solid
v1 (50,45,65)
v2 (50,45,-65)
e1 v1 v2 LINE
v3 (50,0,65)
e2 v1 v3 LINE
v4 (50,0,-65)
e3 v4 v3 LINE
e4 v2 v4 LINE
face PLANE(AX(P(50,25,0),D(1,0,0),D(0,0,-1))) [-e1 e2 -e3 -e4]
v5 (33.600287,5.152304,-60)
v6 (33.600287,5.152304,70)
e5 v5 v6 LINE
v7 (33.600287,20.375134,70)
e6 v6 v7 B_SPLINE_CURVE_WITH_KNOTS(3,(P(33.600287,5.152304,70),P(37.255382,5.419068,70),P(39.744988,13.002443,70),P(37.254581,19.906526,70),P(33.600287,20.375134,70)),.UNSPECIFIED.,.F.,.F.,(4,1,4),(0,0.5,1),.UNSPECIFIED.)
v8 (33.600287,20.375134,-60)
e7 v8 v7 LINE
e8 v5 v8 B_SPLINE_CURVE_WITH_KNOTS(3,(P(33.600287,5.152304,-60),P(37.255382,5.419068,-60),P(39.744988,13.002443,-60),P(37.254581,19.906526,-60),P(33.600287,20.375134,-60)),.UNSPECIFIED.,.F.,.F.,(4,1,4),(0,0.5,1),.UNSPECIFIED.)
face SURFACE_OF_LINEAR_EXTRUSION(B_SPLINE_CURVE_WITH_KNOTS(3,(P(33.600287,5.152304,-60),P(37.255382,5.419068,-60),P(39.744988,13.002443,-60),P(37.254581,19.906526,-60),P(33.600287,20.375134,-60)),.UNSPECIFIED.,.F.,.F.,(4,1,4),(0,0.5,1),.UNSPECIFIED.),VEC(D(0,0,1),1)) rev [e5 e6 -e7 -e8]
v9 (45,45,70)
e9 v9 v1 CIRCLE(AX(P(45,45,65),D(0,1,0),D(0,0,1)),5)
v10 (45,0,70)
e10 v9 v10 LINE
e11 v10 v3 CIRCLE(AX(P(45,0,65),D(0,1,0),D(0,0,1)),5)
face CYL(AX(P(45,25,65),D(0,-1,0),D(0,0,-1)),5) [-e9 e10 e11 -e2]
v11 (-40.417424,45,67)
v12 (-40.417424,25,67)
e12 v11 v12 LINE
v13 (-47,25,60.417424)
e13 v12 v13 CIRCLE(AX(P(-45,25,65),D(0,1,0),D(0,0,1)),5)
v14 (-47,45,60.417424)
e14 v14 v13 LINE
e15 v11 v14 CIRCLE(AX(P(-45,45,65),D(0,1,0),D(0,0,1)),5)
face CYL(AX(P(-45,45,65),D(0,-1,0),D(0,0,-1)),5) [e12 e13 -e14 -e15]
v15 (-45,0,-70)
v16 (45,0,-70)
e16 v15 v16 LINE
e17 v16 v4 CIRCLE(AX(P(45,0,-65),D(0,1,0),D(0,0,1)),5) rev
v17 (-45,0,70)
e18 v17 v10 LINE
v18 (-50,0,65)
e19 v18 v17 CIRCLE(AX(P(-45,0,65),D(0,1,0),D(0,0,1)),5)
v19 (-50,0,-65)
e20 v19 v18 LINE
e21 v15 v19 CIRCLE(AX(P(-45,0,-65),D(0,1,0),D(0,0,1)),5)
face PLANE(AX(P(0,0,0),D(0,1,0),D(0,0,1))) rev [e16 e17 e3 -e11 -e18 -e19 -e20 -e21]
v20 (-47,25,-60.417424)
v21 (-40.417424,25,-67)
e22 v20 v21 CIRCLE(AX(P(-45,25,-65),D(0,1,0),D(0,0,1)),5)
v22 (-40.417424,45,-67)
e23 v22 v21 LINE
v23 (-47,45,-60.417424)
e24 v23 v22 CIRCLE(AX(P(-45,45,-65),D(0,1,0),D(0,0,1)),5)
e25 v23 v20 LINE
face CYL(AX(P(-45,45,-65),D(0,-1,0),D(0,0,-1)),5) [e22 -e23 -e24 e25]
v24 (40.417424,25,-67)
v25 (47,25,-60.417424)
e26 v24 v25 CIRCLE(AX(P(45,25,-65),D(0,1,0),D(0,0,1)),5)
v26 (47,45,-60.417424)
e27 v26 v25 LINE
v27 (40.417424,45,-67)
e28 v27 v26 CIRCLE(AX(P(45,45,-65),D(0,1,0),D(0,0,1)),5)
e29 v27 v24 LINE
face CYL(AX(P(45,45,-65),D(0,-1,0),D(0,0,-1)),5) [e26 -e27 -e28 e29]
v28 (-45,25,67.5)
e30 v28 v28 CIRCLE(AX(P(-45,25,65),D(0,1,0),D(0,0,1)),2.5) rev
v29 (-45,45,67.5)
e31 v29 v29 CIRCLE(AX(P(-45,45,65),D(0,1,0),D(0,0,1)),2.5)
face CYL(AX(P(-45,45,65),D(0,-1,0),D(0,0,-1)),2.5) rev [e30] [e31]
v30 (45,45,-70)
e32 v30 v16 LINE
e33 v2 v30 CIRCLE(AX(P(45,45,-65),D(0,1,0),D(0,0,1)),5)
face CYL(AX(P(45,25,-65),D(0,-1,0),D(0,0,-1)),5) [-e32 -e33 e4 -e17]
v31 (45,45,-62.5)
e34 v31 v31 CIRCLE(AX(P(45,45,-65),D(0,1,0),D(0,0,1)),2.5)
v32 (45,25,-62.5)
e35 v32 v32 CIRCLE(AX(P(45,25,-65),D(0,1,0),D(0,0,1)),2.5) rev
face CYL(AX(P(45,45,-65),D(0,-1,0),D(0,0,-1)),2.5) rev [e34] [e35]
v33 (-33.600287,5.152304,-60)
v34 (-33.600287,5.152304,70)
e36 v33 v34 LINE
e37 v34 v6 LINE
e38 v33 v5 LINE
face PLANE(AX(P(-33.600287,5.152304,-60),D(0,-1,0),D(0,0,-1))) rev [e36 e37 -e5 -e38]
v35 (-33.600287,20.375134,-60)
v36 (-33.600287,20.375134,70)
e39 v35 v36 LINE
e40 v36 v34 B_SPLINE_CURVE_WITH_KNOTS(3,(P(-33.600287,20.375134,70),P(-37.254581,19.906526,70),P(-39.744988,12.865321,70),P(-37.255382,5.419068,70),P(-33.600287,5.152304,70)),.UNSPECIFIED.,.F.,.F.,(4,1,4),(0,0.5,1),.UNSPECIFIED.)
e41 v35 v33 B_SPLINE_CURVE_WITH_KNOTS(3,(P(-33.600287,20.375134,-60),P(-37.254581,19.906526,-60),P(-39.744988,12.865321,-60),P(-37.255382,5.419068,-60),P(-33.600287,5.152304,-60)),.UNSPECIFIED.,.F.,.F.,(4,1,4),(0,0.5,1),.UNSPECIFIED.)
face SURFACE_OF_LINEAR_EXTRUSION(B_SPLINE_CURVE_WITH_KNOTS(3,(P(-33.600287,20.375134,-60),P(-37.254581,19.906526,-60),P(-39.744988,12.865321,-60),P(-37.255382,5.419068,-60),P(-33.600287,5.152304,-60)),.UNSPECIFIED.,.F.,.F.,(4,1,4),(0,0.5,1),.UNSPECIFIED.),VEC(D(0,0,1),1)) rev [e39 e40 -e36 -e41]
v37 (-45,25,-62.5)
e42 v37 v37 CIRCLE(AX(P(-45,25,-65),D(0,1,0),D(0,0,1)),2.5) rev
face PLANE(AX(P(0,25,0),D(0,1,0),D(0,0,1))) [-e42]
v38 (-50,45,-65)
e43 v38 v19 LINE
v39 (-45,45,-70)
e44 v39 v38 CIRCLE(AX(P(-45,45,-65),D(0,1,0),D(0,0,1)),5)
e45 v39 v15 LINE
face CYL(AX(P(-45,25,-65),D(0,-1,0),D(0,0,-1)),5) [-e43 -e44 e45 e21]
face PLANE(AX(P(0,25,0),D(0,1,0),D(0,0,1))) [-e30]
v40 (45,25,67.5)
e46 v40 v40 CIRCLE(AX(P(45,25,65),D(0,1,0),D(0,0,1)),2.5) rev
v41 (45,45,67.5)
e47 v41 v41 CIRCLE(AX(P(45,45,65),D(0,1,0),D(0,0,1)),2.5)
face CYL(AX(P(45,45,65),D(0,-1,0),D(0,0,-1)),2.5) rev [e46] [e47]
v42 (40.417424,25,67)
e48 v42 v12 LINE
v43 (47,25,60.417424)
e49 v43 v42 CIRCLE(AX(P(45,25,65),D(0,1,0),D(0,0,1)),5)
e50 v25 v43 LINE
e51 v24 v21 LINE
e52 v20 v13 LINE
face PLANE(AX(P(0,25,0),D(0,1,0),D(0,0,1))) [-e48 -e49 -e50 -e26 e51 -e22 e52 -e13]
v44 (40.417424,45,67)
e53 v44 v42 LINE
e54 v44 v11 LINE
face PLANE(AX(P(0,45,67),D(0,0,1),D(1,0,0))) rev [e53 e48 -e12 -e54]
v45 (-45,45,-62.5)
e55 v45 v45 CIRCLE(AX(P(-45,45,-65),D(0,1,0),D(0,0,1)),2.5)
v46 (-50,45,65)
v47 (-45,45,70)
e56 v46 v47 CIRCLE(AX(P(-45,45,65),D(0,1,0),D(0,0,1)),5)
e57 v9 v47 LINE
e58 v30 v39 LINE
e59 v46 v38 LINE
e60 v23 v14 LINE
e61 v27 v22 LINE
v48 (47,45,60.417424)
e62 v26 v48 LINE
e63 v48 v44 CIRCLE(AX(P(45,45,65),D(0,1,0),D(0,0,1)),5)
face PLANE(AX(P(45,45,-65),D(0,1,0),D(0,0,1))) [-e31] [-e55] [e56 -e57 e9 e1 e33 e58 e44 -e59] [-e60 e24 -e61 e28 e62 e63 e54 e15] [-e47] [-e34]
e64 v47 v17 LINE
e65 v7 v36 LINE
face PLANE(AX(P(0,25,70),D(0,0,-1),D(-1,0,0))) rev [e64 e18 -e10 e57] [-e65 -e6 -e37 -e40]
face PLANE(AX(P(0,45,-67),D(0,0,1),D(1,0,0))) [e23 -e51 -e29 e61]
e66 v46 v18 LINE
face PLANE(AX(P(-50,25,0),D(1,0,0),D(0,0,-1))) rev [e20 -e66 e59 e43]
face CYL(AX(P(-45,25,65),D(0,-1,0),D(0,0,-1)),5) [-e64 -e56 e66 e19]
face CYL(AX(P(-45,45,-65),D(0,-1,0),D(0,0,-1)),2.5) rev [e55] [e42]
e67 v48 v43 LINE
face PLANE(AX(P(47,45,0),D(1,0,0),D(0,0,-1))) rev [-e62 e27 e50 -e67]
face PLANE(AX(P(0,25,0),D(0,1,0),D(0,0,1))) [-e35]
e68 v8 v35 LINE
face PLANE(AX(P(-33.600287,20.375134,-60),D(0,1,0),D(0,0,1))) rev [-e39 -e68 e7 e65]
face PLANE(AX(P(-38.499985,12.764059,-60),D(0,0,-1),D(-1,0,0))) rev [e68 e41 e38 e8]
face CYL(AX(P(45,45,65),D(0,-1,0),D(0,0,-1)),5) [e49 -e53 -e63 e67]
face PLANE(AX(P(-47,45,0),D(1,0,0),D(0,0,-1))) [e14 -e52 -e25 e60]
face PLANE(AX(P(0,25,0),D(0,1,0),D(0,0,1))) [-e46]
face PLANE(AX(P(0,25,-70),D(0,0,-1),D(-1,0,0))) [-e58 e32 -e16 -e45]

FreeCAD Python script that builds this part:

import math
import FreeCAD as App
import Part
import Sketcher

V = App.Vector
Q = App.Units.Quantity

doc = App.newDocument("Part")
params = doc.addObject("Spreadsheet::Sheet", "Params")
for row, (alias, value) in enumerate([
    ("sketch1_radius", "5 mm"),
    ("sketch1_width", "90 mm"),
    ("sketch1_height", "130 mm"),
    ("pad1_length", "25 mm"),
    ("sketch2_diameter", "5 mm"),
    ("sketch2_radius", "5 mm"),
    ("sketch2_width", "90 mm"),
    ("sketch2_height", "130 mm"),
    ("pad2_length", "20 mm"),
    ("pocket1_length", "130 mm"),
], start=1):
    params.set(f"A{row}", alias)
    params.set(f"B{row}", "=" + value)
    params.setAlias(f"B{row}", alias)

body = doc.addObject("PartDesign::Body", "Body")

sketch1 = body.newObject("Sketcher::SketchObject", "Sketch")
sketch1.AttachmentSupport = (doc.getObject("XZ_Plane"), [""])
sketch1.MapMode = "FlatFace"
sketch1.addGeometry([
    Part.LineSegment(V(45, -70, 0), V(-45, -70, 0)),
    Part.ArcOfCircle(Part.Circle(V(-45, -65, 0), V(0, 0, 1), 5), math.radians(180), math.radians(270)),
    Part.LineSegment(V(-50, -65, 0), V(-50, 65, 0)),
    Part.ArcOfCircle(Part.Circle(V(-45, 65, 0), V(0, 0, 1), 5), math.radians(90), math.radians(180)),
    Part.LineSegment(V(-45, 70, 0), V(45, 70, 0)),
    Part.ArcOfCircle(Part.Circle(V(45, 65, 0), V(0, 0, 1), 5), math.radians(0), math.radians(90)),
    Part.LineSegment(V(50, 65, 0), V(50, -65, 0)),
    Part.ArcOfCircle(Part.Circle(V(45, -65, 0), V(0, 0, 1), 5), math.radians(-90), math.radians(0)),
], False)
sketch1.addConstraint([
    Sketcher.Constraint("Tangent", 0, 2, 1, 2),
    Sketcher.Constraint("Tangent", 1, 1, 2, 1),
    Sketcher.Constraint("Tangent", 2, 2, 3, 2),
    Sketcher.Constraint("Tangent", 3, 1, 4, 1),
    Sketcher.Constraint("Tangent", 4, 2, 5, 2),
    Sketcher.Constraint("Tangent", 5, 1, 6, 1),
    Sketcher.Constraint("Tangent", 6, 2, 7, 2),
    Sketcher.Constraint("Tangent", 7, 1, 0, 1),
    Sketcher.Constraint("Horizontal", 0),
    Sketcher.Constraint("Vertical", 2),
    Sketcher.Constraint("Horizontal", 4),
    Sketcher.Constraint("Vertical", 6),
    Sketcher.Constraint("Equal", 1, 3),
    Sketcher.Constraint("Equal", 3, 5),
    Sketcher.Constraint("Equal", 5, 7),
    Sketcher.Constraint("Symmetric", 1, 3, 5, 3, -1, 1),
    Sketcher.Constraint("Radius", 1, Q("5 mm")),
    Sketcher.Constraint("DistanceX", 0, 2, 0, 1, Q("90 mm")),
    Sketcher.Constraint("DistanceY", 2, 1, 2, 2, Q("130 mm")),
])
sketch1.setExpression("Constraints[16]", "Params.sketch1_radius")
sketch1.setExpression("Constraints[17]", "Params.sketch1_width")
sketch1.setExpression("Constraints[18]", "Params.sketch1_height")
pad1 = body.newObject("PartDesign::Pad", "Pad")
pad1.Profile = sketch1
pad1.setExpression("Length", "Params.pad1_length")
pad1.Reversed = True

sketch2 = body.newObject("Sketcher::SketchObject", "Sketch001")
sketch2.AttachmentSupport = (doc.getObject("XZ_Plane"), [""])
sketch2.MapMode = "FlatFace"
sketch2.AttachmentOffset = App.Placement(V(0, 0, -25), App.Rotation())
sketch2.addGeometry([
    Part.LineSegment(V(45, -70, 0), V(-45, -70, 0)),
    Part.ArcOfCircle(Part.Circle(V(-45, -65, 0), V(0, 0, 1), 5), math.radians(180), math.radians(270)),
    Part.LineSegment(V(-50, -65, 0), V(-50, 65, 0)),
    Part.ArcOfCircle(Part.Circle(V(-45, 65, 0), V(0, 0, 1), 5), math.radians(90), math.radians(180)),
    Part.LineSegment(V(-45, 70, 0), V(45, 70, 0)),
    Part.ArcOfCircle(Part.Circle(V(45, 65, 0), V(0, 0, 1), 5), math.radians(0), math.radians(90)),
    Part.LineSegment(V(50, 65, 0), V(50, -65, 0)),
    Part.ArcOfCircle(Part.Circle(V(45, -65, 0), V(0, 0, 1), 5), math.radians(-90), math.radians(0)),
    Part.Circle(V(45, 65, 0), V(0, 0, 1), 2.5),
    Part.Circle(V(-45, 65, 0), V(0, 0, 1), 2.5),
    Part.Circle(V(45, -65, 0), V(0, 0, 1), 2.5),
    Part.LineSegment(V(-40.4, -67, 0), V(40.4, -67, 0)),
    Part.ArcOfCircle(Part.Circle(V(45, -65, 0), V(0, 0, 1), 5), math.radians(66), math.radians(204)),
    Part.LineSegment(V(47, -60.4, 0), V(47, 60.4, 0)),
    Part.ArcOfCircle(Part.Circle(V(45, 65, 0), V(0, 0, 1), 5), math.radians(156), math.radians(294)),
    Part.LineSegment(V(40.4, 67, 0), V(-40.4, 67, 0)),
    Part.ArcOfCircle(Part.Circle(V(-45, 65, 0), V(0, 0, 1), 5), math.radians(-114), math.radians(24)),
    Part.LineSegment(V(-47, 60.4, 0), V(-47, -60.4, 0)),
    Part.ArcOfCircle(Part.Circle(V(-45, -65, 0), V(0, 0, 1), 5), math.radians(-24), math.radians(114)),
    Part.Circle(V(-45, -65, 0), V(0, 0, 1), 2.5),
], False)
sketch2.addConstraint([
    Sketcher.Constraint("Tangent", 0, 2, 1, 2),
    Sketcher.Constraint("Tangent", 1, 1, 2, 1),
    Sketcher.Constraint("Tangent", 2, 2, 3, 2),
    Sketcher.Constraint("Tangent", 3, 1, 4, 1),
    Sketcher.Constraint("Tangent", 4, 2, 5, 2),
    Sketcher.Constraint("Tangent", 5, 1, 6, 1),
    Sketcher.Constraint("Tangent", 6, 2, 7, 2),
    Sketcher.Constraint("Tangent", 7, 1, 0, 1),
    Sketcher.Constraint("Coincident", 11, 2, 12, 2),
    Sketcher.Constraint("Coincident", 12, 1, 13, 1),
    Sketcher.Constraint("Coincident", 13, 2, 14, 2),
    Sketcher.Constraint("Coincident", 14, 1, 15, 1),
    Sketcher.Constraint("Coincident", 15, 2, 16, 2),
    Sketcher.Constraint("Coincident", 16, 1, 17, 1),
    Sketcher.Constraint("Coincident", 17, 2, 18, 2),
    Sketcher.Constraint("Coincident", 18, 1, 11, 1),
    Sketcher.Constraint("Horizontal", 0),
    Sketcher.Constraint("Vertical", 2),
    Sketcher.Constraint("Horizontal", 4),
    Sketcher.Constraint("Vertical", 6),
    Sketcher.Constraint("Horizontal", 11),
    Sketcher.Constraint("Vertical", 13),
    Sketcher.Constraint("Horizontal", 15),
    Sketcher.Constraint("Vertical", 17),
    Sketcher.Constraint("Coincident", 8, 3, 5, 3),
    Sketcher.Constraint("Coincident", 9, 3, 3, 3),
    Sketcher.Constraint("Coincident", 10, 3, 7, 3),
    Sketcher.Constraint("Coincident", 12, 3, 7, 3),
    Sketcher.Constraint("Coincident", 14, 3, 5, 3),
    Sketcher.Constraint("Coincident", 16, 3, 3, 3),
    Sketcher.Constraint("Coincident", 18, 3, 1, 3),
    Sketcher.Constraint("Coincident", 19, 3, 1, 3),
    Sketcher.Constraint("Equal", 1, 3),
    Sketcher.Constraint("Equal", 3, 5),
    Sketcher.Constraint("Equal", 5, 7),
    Sketcher.Constraint("Equal", 8, 9),
    Sketcher.Constraint("Equal", 9, 10),
    Sketcher.Constraint("Equal", 7, 12),
    Sketcher.Constraint("Equal", 12, 14),
    Sketcher.Constraint("Equal", 14, 16),
    Sketcher.Constraint("Equal", 16, 18),
    Sketcher.Constraint("Equal", 10, 19),
    Sketcher.Constraint("Symmetric", 1, 3, 5, 3, -1, 1),
    Sketcher.Constraint("Horizontal", 13, 2, 16, 1),
    Sketcher.Constraint("Vertical", 11, 2, 14, 1),
    Sketcher.Constraint("Diameter", 8, Q("5 mm")),
    Sketcher.Constraint("Radius", 1, Q("5 mm")),
    Sketcher.Constraint("DistanceX", 0, 2, 0, 1, Q("90 mm")),
    Sketcher.Constraint("DistanceY", 2, 1, 2, 2, Q("130 mm")),
    Sketcher.Constraint("DistanceY", 11, 2, -1, 1, Q("67 mm")),
    Sketcher.Constraint("DistanceX", -1, 1, 12, 1, Q("47 mm")),
])
sketch2.setExpression("Constraints[45]", "Params.sketch2_diameter")
sketch2.setExpression("Constraints[46]", "Params.sketch2_radius")
sketch2.setExpression("Constraints[47]", "Params.sketch2_width")
sketch2.setExpression("Constraints[48]", "Params.sketch2_height")
pad2 = body.newObject("PartDesign::Pad", "Pad001")
pad2.Profile = sketch2
pad2.setExpression("Length", "Params.pad2_length")
pad2.Reversed = True

sketch3 = body.newObject("Sketcher::SketchObject", "Sketch002")
sketch3.AttachmentSupport = (doc.getObject("XY_Plane"), [""])
sketch3.MapMode = "FlatFace"
sketch3.AttachmentOffset = App.Placement(V(0, 0, 70), App.Rotation())
sketch3.addGeometry([
    Part.LineSegment(V(-33.600287, 5.152304, 0), V(33.600287, 5.152304, 0)),
    Part.BSplineCurve([V(33.600287, 20.375134, 0), V(37.254581, 19.906526, 0), V(39.744988, 13.002443, 0), V(37.255382, 5.419068, 0), V(33.600287, 5.152304, 0)], [4, 1, 4], [0, 0.5, 1], False, 3, [1, 1, 1, 1, 1], False),
    Part.LineSegment(V(33.600287, 20.375134, 0), V(-33.600287, 20.375134, 0)),
    Part.BSplineCurve([V(-33.600287, 20.375134, 0), V(-37.254581, 19.906526, 0), V(-39.744988, 12.865321, 0), V(-37.255382, 5.419068, 0), V(-33.600287, 5.152304, 0)], [4, 1, 4], [0, 0.5, 1], False, 3, [1, 1, 1, 1, 1], False),
], False)
sketch3.addConstraint([
    Sketcher.Constraint("Block", 1),
    Sketcher.Constraint("Block", 3),
    Sketcher.Constraint("Coincident", 0, 2, 1, 2),
    Sketcher.Constraint("Coincident", 1, 1, 2, 1),
    Sketcher.Constraint("Coincident", 2, 2, 3, 1),
    Sketcher.Constraint("Coincident", 3, 2, 0, 1),
])
pocket1 = body.newObject("PartDesign::Pocket", "Pocket")
pocket1.Profile = sketch3
pocket1.setExpression("Length", "Params.pocket1_length")

doc.recompute()
